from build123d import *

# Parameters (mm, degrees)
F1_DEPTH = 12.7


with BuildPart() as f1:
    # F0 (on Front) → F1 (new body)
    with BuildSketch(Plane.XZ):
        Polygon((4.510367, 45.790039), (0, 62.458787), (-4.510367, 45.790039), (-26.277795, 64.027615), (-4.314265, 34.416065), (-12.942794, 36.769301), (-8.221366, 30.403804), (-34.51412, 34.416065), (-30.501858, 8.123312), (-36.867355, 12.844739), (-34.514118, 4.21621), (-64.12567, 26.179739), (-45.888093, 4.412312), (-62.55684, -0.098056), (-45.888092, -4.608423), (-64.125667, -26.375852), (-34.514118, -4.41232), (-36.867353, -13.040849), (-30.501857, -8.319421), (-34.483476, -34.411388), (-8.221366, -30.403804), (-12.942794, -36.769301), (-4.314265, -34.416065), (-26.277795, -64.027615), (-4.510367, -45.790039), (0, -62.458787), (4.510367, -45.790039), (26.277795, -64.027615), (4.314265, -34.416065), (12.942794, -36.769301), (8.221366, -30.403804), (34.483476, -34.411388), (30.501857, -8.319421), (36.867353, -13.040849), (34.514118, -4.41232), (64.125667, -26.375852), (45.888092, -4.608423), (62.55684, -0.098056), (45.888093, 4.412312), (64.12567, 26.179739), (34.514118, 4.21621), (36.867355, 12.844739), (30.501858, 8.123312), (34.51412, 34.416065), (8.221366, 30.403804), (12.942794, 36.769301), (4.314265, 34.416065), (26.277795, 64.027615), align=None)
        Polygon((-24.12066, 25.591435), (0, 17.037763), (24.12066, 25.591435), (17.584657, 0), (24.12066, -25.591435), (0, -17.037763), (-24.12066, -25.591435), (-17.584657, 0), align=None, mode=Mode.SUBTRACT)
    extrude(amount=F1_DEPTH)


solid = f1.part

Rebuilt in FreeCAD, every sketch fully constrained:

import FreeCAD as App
import Part
import Sketcher
from FreeCAD import Vector
Q = App.Units.Quantity


def add_polygon(sketch, points):
    """Adds a closed chain of lines whose ends are joined by coincident constraints."""
    first, n = sketch.GeometryCount, len(points)
    for a, b in zip(points, points[1:] + points[:1]):
        sketch.addGeometry(Part.LineSegment(App.Vector(*a, 0), App.Vector(*b, 0)), False)
    for i in range(n):
        sketch.addConstraint(Sketcher.Constraint("Coincident", first + i, 2, first + (i + 1) % n, 1))

doc = App.newDocument("Part")
params = doc.addObject("Spreadsheet::Sheet", "Params")
for row, (alias, value) in enumerate([
    ("pad1_length", "0.5 in"),
], start=1):
    params.set(f"A{row}", alias)
    params.set(f"B{row}", "=" + value)
    params.setAlias(f"B{row}", alias)

body = doc.addObject("PartDesign::Body", "Body")

# Sketch on XZ plane
sketch1 = body.newObject("Sketcher::SketchObject", "Sketch")
sketch1.AttachmentSupport = (doc.getObject("XZ_Plane"), [""])
sketch1.MapMode = "FlatFace"
add_polygon(sketch1, [(4.510367, 45.790039), (0, 62.458787), (-4.510367, 45.790039), (-26.277795, 64.027615), (-4.314265, 34.416065), (-12.942794, 36.769301), (-8.221366, 30.403804), (-34.51412, 34.416065), (-30.501858, 8.123312), (-36.867355, 12.844739), (-34.514118, 4.21621), (-64.12567, 26.179739), (-45.888093, 4.412312), (-62.55684, -0.098056), (-45.888092, -4.608423), (-64.125667, -26.375852), (-34.514118, -4.41232), (-36.867353, -13.040849), (-30.501857, -8.319421), (-34.483476, -34.411388), (-8.221366, -30.403804), (-12.942794, -36.769301), (-4.314265, -34.416065), (-26.277795, -64.027615), (-4.510367, -45.790039), (0, -62.458787), (4.510367, -45.790039), (26.277795, -64.027615), (4.314265, -34.416065), (12.942794, -36.769301), (8.221366, -30.403804), (34.483476, -34.411388), (30.501857, -8.319421), (36.867353, -13.040849), (34.514118, -4.41232), (64.125667, -26.375852), (45.888092, -4.608423), (62.55684, -0.098056), (45.888093, 4.412312), (64.12567, 26.179739), (34.514118, 4.21621), (36.867355, 12.844739), (30.501858, 8.123312), (34.51412, 34.416065), (8.221366, 30.403804), (12.942794, 36.769301), (4.314265, 34.416065), (26.277795, 64.027615)])  # lines 0-47
add_polygon(sketch1, [(-17.584657, 0), (-24.12066, 25.591435), (0, 17.037763), (24.12066, 25.591435), (17.584657, 0), (24.12066, -25.591435), (0, -17.037763), (-24.12066, -25.591435)])  # lines 48-55
sketch1.addConstraint([
    Sketcher.Constraint("PointOnObject", 0, 2, -2),
    Sketcher.Constraint("PointOnObject", 24, 2, -2),
    Sketcher.Constraint("PointOnObject", 49, 2, -2),
    Sketcher.Constraint("PointOnObject", 51, 2, -1),
    Sketcher.Constraint("PointOnObject", 53, 2, -2),
    Sketcher.Constraint("PointOnObject", 55, 2, -1),
    Sketcher.Constraint("DistanceY", -1, 1, 5, 2, Q("1.1970002 in")),
    Sketcher.Constraint("DistanceY", 19, 2, -1, 1, Q("1.1970002 in")),
    Sketcher.Constraint("DistanceY", 29, 2, -1, 1, Q("1.1970002 in")),
    Sketcher.Constraint("DistanceY", -1, 1, 43, 2, Q("1.1970002 in")),
    Sketcher.Constraint("DistanceY", 1, 2, 0, 2, Q("0.6562499 in")),
    Sketcher.Constraint("DistanceX", 2, 2, 4, 2, Q("0.525 in")),
    Sketcher.Constraint("DistanceY", 8, 2, 10, 2, Q("0.525 in")),
    Sketcher.Constraint("DistanceX", 12, 2, 11, 2, Q("0.6562499 in")),
    Sketcher.Constraint("DistanceX", 12, 2, 13, 2, Q("0.6562499 in")),
    Sketcher.Constraint("DistanceX", 22, 2, 20, 2, Q("0.525 in")),
    Sketcher.Constraint("DistanceY", 24, 2, 23, 2, Q("0.6562499 in")),
    Sketcher.Constraint("DistanceY", 24, 2, 25, 2, Q("0.6562499 in")),
    Sketcher.Constraint("DistanceY", 34, 2, 32, 2, Q("0.5250001 in")),
    Sketcher.Constraint("DistanceX", 35, 2, 36, 2, Q("0.6562499 in")),
    Sketcher.Constraint("DistanceX", 37, 2, 36, 2, Q("0.6562499 in")),
    Sketcher.Constraint("DistanceX", 44, 2, 46, 2, Q("0.525 in")),
    Sketcher.Constraint("DistanceY", -1, 1, 4, 2, Q("36.769301 mm")),
    Sketcher.Constraint("DistanceY", 20, 2, -1, 1, Q("36.769301 mm")),
    Sketcher.Constraint("DistanceY", 28, 2, -1, 1, Q("36.769301 mm")),
    Sketcher.Constraint("DistanceY", -1, 1, 44, 2, Q("36.769301 mm")),
    Sketcher.Constraint("DistanceX", 1, 2, 3, 2, Q("0.196102 mm")),
    Sketcher.Constraint("DistanceX", 5, 2, 3, 2, Q("3.907101 mm")),
    Sketcher.Constraint("DistanceY", 9, 2, 11, 2, Q("0.196102 mm")),
    Sketcher.Constraint("DistanceY", 11, 2, 7, 2, Q("3.711 mm")),
    Sketcher.Constraint("DistanceY", 17, 2, 15, 2, Q("3.907101 mm")),
    Sketcher.Constraint("DistanceY", 17, 2, 13, 2, Q("3.710998 mm")),
    Sketcher.Constraint("DistanceX", 19, 2, 21, 2, Q("3.907101 mm")),
    Sketcher.Constraint("DistanceX", 23, 2, 21, 2, Q("0.196102 mm")),
    Sketcher.Constraint("DistanceX", 27, 2, 25, 2, Q("0.196102 mm")),
    Sketcher.Constraint("DistanceX", 27, 2, 29, 2, Q("3.907101 mm")),
    Sketcher.Constraint("DistanceY", 31, 2, 33, 2, Q("3.907101 mm")),
    Sketcher.Constraint("DistanceY", 31, 2, 35, 2, Q("3.710998 mm")),
    Sketcher.Constraint("DistanceY", 39, 2, 37, 2, Q("0.196102 mm")),
    Sketcher.Constraint("DistanceX", 31, 2, 40, 2, Q("6.365498 mm")),
    Sketcher.Constraint("DistanceY", 37, 2, 41, 2, Q("3.711 mm")),
    Sketcher.Constraint("DistanceX", 45, 2, 43, 2, Q("3.907101 mm")),
    Sketcher.Constraint("DistanceX", 45, 2, 47, 2, Q("0.196102 mm")),
    Sketcher.Constraint("DistanceX", 51, 2, 41, 2, Q("12.917201 mm")),
    Sketcher.Constraint("DistanceX", 51, 2, 31, 2, Q("12.9172 mm")),
    Sketcher.Constraint("DistanceX", 7, 2, 55, 2, Q("12.917201 mm")),
    Sketcher.Constraint("DistanceX", 17, 2, 55, 2, Q("12.9172 mm")),
    Sketcher.Constraint("DistanceX", 8, 2, 55, 2, Q("19.282698 mm")),
    Sketcher.Constraint("Distance", 3, Q("36.86788 mm")),
    Sketcher.Constraint("Distance", 4, Q("8.94367 mm")),
    Sketcher.Constraint("Distance", 9, Q("8.94367 mm")),
    Sketcher.Constraint("Distance", 10, Q("36.867881 mm")),
    Sketcher.Constraint("Distance", 15, Q("36.86788 mm")),
    Sketcher.Constraint("Distance", 16, Q("8.94367 mm")),
    Sketcher.Constraint("Distance", 21, Q("8.94367 mm")),
    Sketcher.Constraint("Distance", 22, Q("36.86788 mm")),
    Sketcher.Constraint("Distance", 27, Q("36.86788 mm")),
    Sketcher.Constraint("Distance", 28, Q("8.94367 mm")),
    Sketcher.Constraint("Distance", 33, Q("8.94367 mm")),
    Sketcher.Constraint("Distance", 34, Q("36.86788 mm")),
    Sketcher.Constraint("Distance", 39, Q("36.867881 mm")),
    Sketcher.Constraint("Distance", 40, Q("8.94367 mm")),
    Sketcher.Constraint("Distance", 45, Q("8.94367 mm")),
    Sketcher.Constraint("Distance", 46, Q("36.86788 mm")),
    Sketcher.Constraint("Distance", 49, Q("25.592412 mm")),
    Sketcher.Constraint("Distance", 50, Q("25.592412 mm")),
    Sketcher.Constraint("Distance", 53, Q("25.592412 mm")),
    Sketcher.Constraint("Distance", 54, Q("25.592412 mm")),
    Sketcher.Constraint("DistanceY", -1, 1, 1, 2, Q("45.790039 mm")),
    Sketcher.Constraint("DistanceX", 6, 2, -1, 1, Q("34.51412 mm")),
    Sketcher.Constraint("DistanceY", -1, 1, 8, 2, Q("12.844739 mm")),
    Sketcher.Constraint("DistanceX", 9, 2, -1, 1, Q("34.514118 mm")),
    Sketcher.Constraint("DistanceY", -1, 1, 9, 2, Q("4.21621 mm")),
    Sketcher.Constraint("DistanceX", 12, 2, -1, 1, Q("62.55684 mm")),
    Sketcher.Constraint("DistanceY", 14, 2, -1, 1, Q("26.375852 mm")),
    Sketcher.Constraint("DistanceX", 15, 2, -1, 1, Q("34.514118 mm")),
    Sketcher.Constraint("DistanceY", 15, 2, -1, 1, Q("4.41232 mm")),
    Sketcher.Constraint("DistanceY", 16, 2, -1, 1, Q("13.040849 mm")),
    Sketcher.Constraint("DistanceY", 18, 2, -1, 1, Q("34.411388 mm")),
    Sketcher.Constraint("DistanceY", 23, 2, -1, 1, Q("45.790039 mm")),
    Sketcher.Constraint("DistanceY", 30, 2, -1, 1, Q("34.411388 mm")),
    Sketcher.Constraint("DistanceY", 31, 2, -1, 1, Q("8.319421 mm")),
    Sketcher.Constraint("DistanceY", 32, 2, -1, 1, Q("13.040849 mm")),
    Sketcher.Constraint("DistanceX", -1, 1, 33, 2, Q("34.514118 mm")),
    Sketcher.Constraint("DistanceX", -1, 1, 36, 2, Q("62.55684 mm")),
    Sketcher.Constraint("DistanceX", -1, 1, 38, 2, Q("64.12567 mm")),
    Sketcher.Constraint("DistanceY", -1, 1, 38, 2, Q("26.179739 mm")),
    Sketcher.Constraint("DistanceX", -1, 1, 39, 2, Q("34.514118 mm")),
    Sketcher.Constraint("DistanceY", -1, 1, 40, 2, Q("12.844739 mm")),
    Sketcher.Constraint("DistanceX", -1, 1, 42, 2, Q("34.51412 mm")),
    Sketcher.Constraint("DistanceY", -1, 1, 47, 2, Q("45.790039 mm")),
    Sketcher.Constraint("DistanceX", 48, 2, -1, 1, Q("24.12066 mm")),
    Sketcher.Constraint("DistanceX", -1, 1, 50, 2, Q("24.12066 mm")),
    Sketcher.Constraint("DistanceX", -1, 1, 52, 2, Q("24.12066 mm")),
    Sketcher.Constraint("DistanceX", 54, 2, -1, 1, Q("24.12066 mm")),
    Sketcher.Constraint("DistanceX", 2, 2, 1, 2, Q("21.767428 mm")),
    Sketcher.Constraint("DistanceY", 5, 2, 6, 2, Q("4.012261 mm")),
    Sketcher.Constraint("DistanceX", 7, 2, 5, 2, Q("22.280492 mm")),
    Sketcher.Constraint("DistanceX", 18, 2, 17, 2, Q("3.981619 mm")),
    Sketcher.Constraint("DistanceX", 18, 2, 19, 2, Q("26.26211 mm")),
    Sketcher.Constraint("DistanceX", 16, 2, 20, 2, Q("23.924559 mm")),
    Sketcher.Constraint("DistanceX", 21, 2, 25, 2, Q("8.824632 mm")),
    Sketcher.Constraint("DistanceX", 25, 2, 26, 2, Q("21.767428 mm")),
    Sketcher.Constraint("DistanceY", 26, 2, 21, 2, Q("29.61155 mm")),
    Sketcher.Constraint("DistanceX", 29, 2, 30, 2, Q("26.26211 mm")),
    Sketcher.Constraint("DistanceX", 3, 2, 43, 2, Q("12.535631 mm")),
    Sketcher.Constraint("DistanceY", 43, 2, 42, 2, Q("4.012261 mm")),
    Sketcher.Constraint("DistanceX", 3, 2, 44, 2, Q("17.257059 mm")),
    Sketcher.Constraint("DistanceY", 48, 2, 6, 2, Q("8.82463 mm")),
    Sketcher.Constraint("DistanceY", 29, 2, 52, 2, Q("4.812369 mm")),
    Sketcher.Constraint("Distance", 12, Q("17.268195 mm")),
    Sketcher.Constraint("Distance", 36, Q("17.268195 mm")),
])
pad1 = body.newObject("PartDesign::Pad", "Pad")
pad1.Profile = sketch1
pad1.setExpression("Length", "Params.pad1_length")

doc.recompute()
